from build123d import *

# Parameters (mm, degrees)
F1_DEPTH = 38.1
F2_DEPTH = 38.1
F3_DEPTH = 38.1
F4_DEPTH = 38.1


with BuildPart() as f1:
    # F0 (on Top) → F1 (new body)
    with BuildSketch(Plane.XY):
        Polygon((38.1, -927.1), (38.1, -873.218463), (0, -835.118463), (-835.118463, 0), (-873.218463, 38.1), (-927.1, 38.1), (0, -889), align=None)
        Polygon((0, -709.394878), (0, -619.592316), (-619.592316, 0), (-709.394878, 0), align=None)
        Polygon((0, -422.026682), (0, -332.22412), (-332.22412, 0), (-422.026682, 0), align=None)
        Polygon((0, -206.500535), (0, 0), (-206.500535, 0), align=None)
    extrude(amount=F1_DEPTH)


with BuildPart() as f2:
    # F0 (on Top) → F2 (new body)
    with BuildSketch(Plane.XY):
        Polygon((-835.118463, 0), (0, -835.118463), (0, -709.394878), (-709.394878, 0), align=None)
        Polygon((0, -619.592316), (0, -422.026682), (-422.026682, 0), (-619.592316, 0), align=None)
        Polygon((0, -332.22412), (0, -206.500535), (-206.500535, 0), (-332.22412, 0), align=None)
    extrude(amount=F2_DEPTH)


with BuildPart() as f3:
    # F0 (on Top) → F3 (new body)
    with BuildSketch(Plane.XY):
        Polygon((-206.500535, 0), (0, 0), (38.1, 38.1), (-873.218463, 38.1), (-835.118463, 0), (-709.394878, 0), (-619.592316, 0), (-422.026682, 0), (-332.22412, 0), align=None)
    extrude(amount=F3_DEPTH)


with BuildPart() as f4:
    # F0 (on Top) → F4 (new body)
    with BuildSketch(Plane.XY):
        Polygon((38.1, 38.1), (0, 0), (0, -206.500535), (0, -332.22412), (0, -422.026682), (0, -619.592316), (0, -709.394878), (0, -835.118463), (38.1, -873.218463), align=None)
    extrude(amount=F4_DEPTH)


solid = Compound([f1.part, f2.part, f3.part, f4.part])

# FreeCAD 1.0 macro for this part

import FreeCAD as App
import Part
import Sketcher
Q = App.Units.Quantity

doc = App.newDocument("Part")
body = doc.addObject("PartDesign::Body", "Body")
body.AllowCompound = True

# Sketch on XY plane
sketch1 = doc.addObject("Sketcher::SketchObject", "Sketch")
body.addObject(sketch1)
sketch1.AttachmentSupport = (doc.XY_Plane, [""])
sketch1.MapMode = "FlatFace"
sketch1.addGeometry([
    Part.LineSegment(App.Vector(38.1, -927.1, 0), App.Vector(38.1, -873.218463, 0)),  # 0
    Part.LineSegment(App.Vector(38.1, -873.218463, 0), App.Vector(-873.218463, 38.1, 0)),  # 1
    Part.LineSegment(App.Vector(-873.218463, 38.1, 0), App.Vector(-927.1, 38.1, 0)),  # 2
    Part.LineSegment(App.Vector(-927.1, 38.1, 0), App.Vector(38.1, -927.1, 0)),  # 3
    Part.LineSegment(App.Vector(0, -709.394878, 0), App.Vector(0, -619.592316, 0)),  # 4
    Part.LineSegment(App.Vector(0, -619.592316, 0), App.Vector(-619.592316, 0, 0)),  # 5
    Part.LineSegment(App.Vector(-619.592316, 0, 0), App.Vector(-709.394878, 0, 0)),  # 6
    Part.LineSegment(App.Vector(-709.394878, 0, 0), App.Vector(0, -709.394878, 0)),  # 7
    Part.LineSegment(App.Vector(0, -422.026682, 0), App.Vector(0, -332.22412, 0)),  # 8
    Part.LineSegment(App.Vector(0, -332.22412, 0), App.Vector(-332.22412, 0, 0)),  # 9
    Part.LineSegment(App.Vector(-332.22412, 0, 0), App.Vector(-422.026682, 0, 0)),  # 10
    Part.LineSegment(App.Vector(-422.026682, 0, 0), App.Vector(0, -422.026682, 0)),  # 11
    Part.LineSegment(App.Vector(0, -206.500535, 0), App.Vector(0, 0, 0)),  # 12
    Part.LineSegment(App.Vector(0, 0, 0), App.Vector(-206.500535, 0, 0)),  # 13
    Part.LineSegment(App.Vector(-206.500535, 0, 0), App.Vector(0, -206.500535, 0)),  # 14
], False)
sketch1.addConstraint([
    Sketcher.Constraint("Coincident", 0, 2, 1, 1),
    Sketcher.Constraint("Coincident", 1, 2, 2, 1),
    Sketcher.Constraint("Coincident", 2, 2, 3, 1),
    Sketcher.Constraint("Coincident", 3, 2, 0, 1),
    Sketcher.Constraint("Coincident", 4, 2, 5, 1),
    Sketcher.Constraint("Coincident", 5, 2, 6, 1),
    Sketcher.Constraint("Coincident", 6, 2, 7, 1),
    Sketcher.Constraint("Coincident", 7, 2, 4, 1),
    Sketcher.Constraint("Coincident", 8, 2, 9, 1),
    Sketcher.Constraint("Coincident", 9, 2, 10, 1),
    Sketcher.Constraint("Coincident", 10, 2, 11, 1),
    Sketcher.Constraint("Coincident", 11, 2, 8, 1),
    Sketcher.Constraint("Coincident", 12, 2, 13, 1),
    Sketcher.Constraint("Coincident", 13, 2, 14, 1),
    Sketcher.Constraint("Coincident", 14, 2, 12, 1),
    Sketcher.Constraint("Vertical", 0),
    Sketcher.Constraint("Horizontal", 2),
    Sketcher.Constraint("Vertical", 4),
    Sketcher.Constraint("Horizontal", 6),
    Sketcher.Constraint("Vertical", 8),
    Sketcher.Constraint("Horizontal", 10),
    Sketcher.Constraint("Vertical", 12),
    Sketcher.Constraint("Horizontal", 13),
    Sketcher.Constraint("Coincident", 12, 2, -1, 1),
    Sketcher.Constraint("PointOnObject", 4, 2, -2),
    Sketcher.Constraint("PointOnObject", 5, 2, -1),
    Sketcher.Constraint("PointOnObject", 8, 2, -2),
    Sketcher.Constraint("PointOnObject", 9, 2, -1),
    Sketcher.Constraint("Parallel", 1, 3),
    Sketcher.Constraint("Parallel", 3, 5),
    Sketcher.Constraint("Parallel", 5, 7),
    Sketcher.Constraint("Parallel", 7, 9),
    Sketcher.Constraint("Parallel", 9, 11),
    Sketcher.Constraint("Parallel", 11, 14),
    Sketcher.Constraint("Equal", 6, 10),
    Sketcher.Constraint("Equal", 2, 0),
    Sketcher.Constraint("DistanceX", 2, 2, 0, 2, Q("38 in")),
    Sketcher.Constraint("DistanceX", -1, 1, 0, 2, Q("1.5 in")),
    Sketcher.Constraint("DistanceY", -1, 1, 1, 2, Q("1.5 in")),
    Sketcher.Constraint("DistanceX", 6, 2, 6, 1, Q("89.802562 mm")),
    Sketcher.Constraint("Distance", 1, Q("1288.79893 mm")),
    Sketcher.Constraint("DistanceX", 13, 2, 13, 1, Q("206.500535 mm")),
    Sketcher.Constraint("DistanceX", 6, 2, -1, 1, Q("709.394878 mm")),
    Sketcher.Constraint("DistanceY", 8, 2, -1, 1, Q("332.22412 mm")),
])
pad1 = doc.addObject("PartDesign::Pad", "Pad")
body.addObject(pad1)
pad1.Profile = sketch1
pad1.Length = Q("1.5 in")
body2 = doc.addObject("PartDesign::Body", "Body001")
body2.AllowCompound = True

# Sketch on XY plane
sketch2 = doc.addObject("Sketcher::SketchObject", "Sketch001")
body2.addObject(sketch2)
sketch2.AttachmentSupport = (doc.getObject("XY_Plane001"), [""])
sketch2.MapMode = "FlatFace"
sketch2.addGeometry([
    Part.LineSegment(App.Vector(-835.118463, 0, 0), App.Vector(0, -835.118463, 0)),  # 0
    Part.LineSegment(App.Vector(0, -835.118463, 0), App.Vector(0, -709.394878, 0)),  # 1
    Part.LineSegment(App.Vector(0, -709.394878, 0), App.Vector(-709.394878, 0, 0)),  # 2
    Part.LineSegment(App.Vector(-709.394878, 0, 0), App.Vector(-835.118463, 0, 0)),  # 3
    Part.LineSegment(App.Vector(0, -619.592316, 0), App.Vector(0, -422.026682, 0)),  # 4
    Part.LineSegment(App.Vector(0, -422.026682, 0), App.Vector(-422.026682, 0, 0)),  # 5
    Part.LineSegment(App.Vector(-422.026682, 0, 0), App.Vector(-619.592316, 0, 0)),  # 6
    Part.LineSegment(App.Vector(-619.592316, 0, 0), App.Vector(0, -619.592316, 0)),  # 7
    Part.LineSegment(App.Vector(0, -332.22412, 0), App.Vector(0, -206.500535, 0)),  # 8
    Part.LineSegment(App.Vector(0, -206.500535, 0), App.Vector(-206.500535, 0, 0)),  # 9
    Part.LineSegment(App.Vector(-206.500535, 0, 0), App.Vector(-332.22412, 0, 0)),  # 10
    Part.LineSegment(App.Vector(-332.22412, 0, 0), App.Vector(0, -332.22412, 0)),  # 11
], False)
sketch2.addConstraint([
    Sketcher.Constraint("Coincident", 0, 2, 1, 1),
    Sketcher.Constraint("Coincident", 1, 2, 2, 1),
    Sketcher.Constraint("Coincident", 2, 2, 3, 1),
    Sketcher.Constraint("Coincident", 3, 2, 0, 1),
    Sketcher.Constraint("Coincident", 4, 2, 5, 1),
    Sketcher.Constraint("Coincident", 5, 2, 6, 1),
    Sketcher.Constraint("Coincident", 6, 2, 7, 1),
    Sketcher.Constraint("Coincident", 7, 2, 4, 1),
    Sketcher.Constraint("Coincident", 8, 2, 9, 1),
    Sketcher.Constraint("Coincident", 9, 2, 10, 1),
    Sketcher.Constraint("Coincident", 10, 2, 11, 1),
    Sketcher.Constraint("Coincident", 11, 2, 8, 1),
    Sketcher.Constraint("Vertical", 1),
    Sketcher.Constraint("Horizontal", 3),
    Sketcher.Constraint("Vertical", 4),
    Sketcher.Constraint("Horizontal", 6),
    Sketcher.Constraint("Vertical", 8),
    Sketcher.Constraint("Horizontal", 10),
    Sketcher.Constraint("PointOnObject", 0, 2, -2),
    Sketcher.Constraint("PointOnObject", 2, 2, -1),
    Sketcher.Constraint("PointOnObject", 4, 2, -2),
    Sketcher.Constraint("PointOnObject", 5, 2, -1),
    Sketcher.Constraint("PointOnObject", 8, 2, -2),
    Sketcher.Constraint("PointOnObject", 9, 2, -1),
    Sketcher.Constraint("Parallel", 0, 2),
    Sketcher.Constraint("Parallel", 2, 5),
    Sketcher.Constraint("Parallel", 5, 7),
    Sketcher.Constraint("Parallel", 7, 9),
    Sketcher.Constraint("Parallel", 9, 11),
    Sketcher.Constraint("Equal", 3, 10),
    Sketcher.Constraint("Equal", 10, 1),
    Sketcher.Constraint("DistanceX", 3, 2, 3, 1, Q("125.723585 mm")),
    Sketcher.Constraint("DistanceX", 6, 2, 6, 1, Q("197.565634 mm")),
    Sketcher.Constraint("DistanceY", 1, 2, -1, 1, Q("709.394878 mm")),
    Sketcher.Constraint("DistanceY", 4, 2, -1, 1, Q("422.026682 mm")),
    Sketcher.Constraint("DistanceX", 10, 2, -1, 1, Q("332.22412 mm")),
])
pad2 = doc.addObject("PartDesign::Pad", "Pad001")
body2.addObject(pad2)
pad2.Profile = sketch2
pad2.Length = Q("1.5 in")
body3 = doc.addObject("PartDesign::Body", "Body002")

# Sketch on XY plane
sketch3 = doc.addObject("Sketcher::SketchObject", "Sketch002")
body3.addObject(sketch3)
sketch3.AttachmentSupport = (doc.getObject("XY_Plane002"), [""])
sketch3.MapMode = "FlatFace"
sketch3.addGeometry([
    Part.LineSegment(App.Vector(0, 0, 0), App.Vector(38.1, 38.1, 0)),
    Part.LineSegment(App.Vector(38.1, 38.1, 0), App.Vector(-873.218463, 38.1, 0)),
    Part.LineSegment(App.Vector(-873.218463, 38.1, 0), App.Vector(-835.118463, 0, 0)),
    Part.LineSegment(App.Vector(-835.118463, 0, 0), App.Vector(0, 0, 0)),
], False)
sketch3.addConstraint([
    Sketcher.Constraint("Coincident", 0, 2, 1, 1),
    Sketcher.Constraint("Coincident", 1, 2, 2, 1),
    Sketcher.Constraint("Coincident", 2, 2, 3, 1),
    Sketcher.Constraint("Coincident", 3, 2, 0, 1),
    Sketcher.Constraint("Horizontal", 1),
    Sketcher.Constraint("Horizontal", 3),
    Sketcher.Constraint("Coincident", 3, 2, -1, 1),
    Sketcher.Constraint("Perpendicular", 0, 2),
    Sketcher.Constraint("Equal", 0, 2),
    Sketcher.Constraint("DistanceX", -1, 1, 0, 2, Q("1.5 in")),
    Sketcher.Constraint("DistanceX", 1, 2, 1, 1, Q("911.318463 mm")),
])
pad3 = doc.addObject("PartDesign::Pad", "Pad002")
body3.addObject(pad3)
pad3.Profile = sketch3
pad3.Length = Q("1.5 in")
body4 = doc.addObject("PartDesign::Body", "Body003")

# Sketch on XY plane
sketch4 = doc.addObject("Sketcher::SketchObject", "Sketch003")
body4.addObject(sketch4)
sketch4.AttachmentSupport = (doc.getObject("XY_Plane003"), [""])
sketch4.MapMode = "FlatFace"
sketch4.addGeometry([
    Part.LineSegment(App.Vector(38.1, 38.1, 0), App.Vector(0, 0, 0)),
    Part.LineSegment(App.Vector(0, 0, 0), App.Vector(0, -835.118463, 0)),
    Part.LineSegment(App.Vector(0, -835.118463, 0), App.Vector(38.1, -873.218463, 0)),
    Part.LineSegment(App.Vector(38.1, -873.218463, 0), App.Vector(38.1, 38.1, 0)),
], False)
sketch4.addConstraint([
    Sketcher.Constraint("Coincident", 0, 2, 1, 1),
    Sketcher.Constraint("Coincident", 1, 2, 2, 1),
    Sketcher.Constraint("Coincident", 2, 2, 3, 1),
    Sketcher.Constraint("Coincident", 3, 2, 0, 1),
    Sketcher.Constraint("Vertical", 1),
    Sketcher.Constraint("Vertical", 3),
    Sketcher.Constraint("Coincident", 0, 2, -1, 1),
    Sketcher.Constraint("Perpendicular", 0, 2),
    Sketcher.Constraint("Equal", 0, 2),
    Sketcher.Constraint("DistanceX", -1, 1, 2, 2, Q("1.5 in")),
    Sketcher.Constraint("DistanceY", 1, 2, 1, 1, Q("835.118463 mm")),
])
pad4 = doc.addObject("PartDesign::Pad", "Pad003")
body4.addObject(pad4)
pad4.Profile = sketch4
pad4.Length = Q("1.5 in")

doc.recompute()
